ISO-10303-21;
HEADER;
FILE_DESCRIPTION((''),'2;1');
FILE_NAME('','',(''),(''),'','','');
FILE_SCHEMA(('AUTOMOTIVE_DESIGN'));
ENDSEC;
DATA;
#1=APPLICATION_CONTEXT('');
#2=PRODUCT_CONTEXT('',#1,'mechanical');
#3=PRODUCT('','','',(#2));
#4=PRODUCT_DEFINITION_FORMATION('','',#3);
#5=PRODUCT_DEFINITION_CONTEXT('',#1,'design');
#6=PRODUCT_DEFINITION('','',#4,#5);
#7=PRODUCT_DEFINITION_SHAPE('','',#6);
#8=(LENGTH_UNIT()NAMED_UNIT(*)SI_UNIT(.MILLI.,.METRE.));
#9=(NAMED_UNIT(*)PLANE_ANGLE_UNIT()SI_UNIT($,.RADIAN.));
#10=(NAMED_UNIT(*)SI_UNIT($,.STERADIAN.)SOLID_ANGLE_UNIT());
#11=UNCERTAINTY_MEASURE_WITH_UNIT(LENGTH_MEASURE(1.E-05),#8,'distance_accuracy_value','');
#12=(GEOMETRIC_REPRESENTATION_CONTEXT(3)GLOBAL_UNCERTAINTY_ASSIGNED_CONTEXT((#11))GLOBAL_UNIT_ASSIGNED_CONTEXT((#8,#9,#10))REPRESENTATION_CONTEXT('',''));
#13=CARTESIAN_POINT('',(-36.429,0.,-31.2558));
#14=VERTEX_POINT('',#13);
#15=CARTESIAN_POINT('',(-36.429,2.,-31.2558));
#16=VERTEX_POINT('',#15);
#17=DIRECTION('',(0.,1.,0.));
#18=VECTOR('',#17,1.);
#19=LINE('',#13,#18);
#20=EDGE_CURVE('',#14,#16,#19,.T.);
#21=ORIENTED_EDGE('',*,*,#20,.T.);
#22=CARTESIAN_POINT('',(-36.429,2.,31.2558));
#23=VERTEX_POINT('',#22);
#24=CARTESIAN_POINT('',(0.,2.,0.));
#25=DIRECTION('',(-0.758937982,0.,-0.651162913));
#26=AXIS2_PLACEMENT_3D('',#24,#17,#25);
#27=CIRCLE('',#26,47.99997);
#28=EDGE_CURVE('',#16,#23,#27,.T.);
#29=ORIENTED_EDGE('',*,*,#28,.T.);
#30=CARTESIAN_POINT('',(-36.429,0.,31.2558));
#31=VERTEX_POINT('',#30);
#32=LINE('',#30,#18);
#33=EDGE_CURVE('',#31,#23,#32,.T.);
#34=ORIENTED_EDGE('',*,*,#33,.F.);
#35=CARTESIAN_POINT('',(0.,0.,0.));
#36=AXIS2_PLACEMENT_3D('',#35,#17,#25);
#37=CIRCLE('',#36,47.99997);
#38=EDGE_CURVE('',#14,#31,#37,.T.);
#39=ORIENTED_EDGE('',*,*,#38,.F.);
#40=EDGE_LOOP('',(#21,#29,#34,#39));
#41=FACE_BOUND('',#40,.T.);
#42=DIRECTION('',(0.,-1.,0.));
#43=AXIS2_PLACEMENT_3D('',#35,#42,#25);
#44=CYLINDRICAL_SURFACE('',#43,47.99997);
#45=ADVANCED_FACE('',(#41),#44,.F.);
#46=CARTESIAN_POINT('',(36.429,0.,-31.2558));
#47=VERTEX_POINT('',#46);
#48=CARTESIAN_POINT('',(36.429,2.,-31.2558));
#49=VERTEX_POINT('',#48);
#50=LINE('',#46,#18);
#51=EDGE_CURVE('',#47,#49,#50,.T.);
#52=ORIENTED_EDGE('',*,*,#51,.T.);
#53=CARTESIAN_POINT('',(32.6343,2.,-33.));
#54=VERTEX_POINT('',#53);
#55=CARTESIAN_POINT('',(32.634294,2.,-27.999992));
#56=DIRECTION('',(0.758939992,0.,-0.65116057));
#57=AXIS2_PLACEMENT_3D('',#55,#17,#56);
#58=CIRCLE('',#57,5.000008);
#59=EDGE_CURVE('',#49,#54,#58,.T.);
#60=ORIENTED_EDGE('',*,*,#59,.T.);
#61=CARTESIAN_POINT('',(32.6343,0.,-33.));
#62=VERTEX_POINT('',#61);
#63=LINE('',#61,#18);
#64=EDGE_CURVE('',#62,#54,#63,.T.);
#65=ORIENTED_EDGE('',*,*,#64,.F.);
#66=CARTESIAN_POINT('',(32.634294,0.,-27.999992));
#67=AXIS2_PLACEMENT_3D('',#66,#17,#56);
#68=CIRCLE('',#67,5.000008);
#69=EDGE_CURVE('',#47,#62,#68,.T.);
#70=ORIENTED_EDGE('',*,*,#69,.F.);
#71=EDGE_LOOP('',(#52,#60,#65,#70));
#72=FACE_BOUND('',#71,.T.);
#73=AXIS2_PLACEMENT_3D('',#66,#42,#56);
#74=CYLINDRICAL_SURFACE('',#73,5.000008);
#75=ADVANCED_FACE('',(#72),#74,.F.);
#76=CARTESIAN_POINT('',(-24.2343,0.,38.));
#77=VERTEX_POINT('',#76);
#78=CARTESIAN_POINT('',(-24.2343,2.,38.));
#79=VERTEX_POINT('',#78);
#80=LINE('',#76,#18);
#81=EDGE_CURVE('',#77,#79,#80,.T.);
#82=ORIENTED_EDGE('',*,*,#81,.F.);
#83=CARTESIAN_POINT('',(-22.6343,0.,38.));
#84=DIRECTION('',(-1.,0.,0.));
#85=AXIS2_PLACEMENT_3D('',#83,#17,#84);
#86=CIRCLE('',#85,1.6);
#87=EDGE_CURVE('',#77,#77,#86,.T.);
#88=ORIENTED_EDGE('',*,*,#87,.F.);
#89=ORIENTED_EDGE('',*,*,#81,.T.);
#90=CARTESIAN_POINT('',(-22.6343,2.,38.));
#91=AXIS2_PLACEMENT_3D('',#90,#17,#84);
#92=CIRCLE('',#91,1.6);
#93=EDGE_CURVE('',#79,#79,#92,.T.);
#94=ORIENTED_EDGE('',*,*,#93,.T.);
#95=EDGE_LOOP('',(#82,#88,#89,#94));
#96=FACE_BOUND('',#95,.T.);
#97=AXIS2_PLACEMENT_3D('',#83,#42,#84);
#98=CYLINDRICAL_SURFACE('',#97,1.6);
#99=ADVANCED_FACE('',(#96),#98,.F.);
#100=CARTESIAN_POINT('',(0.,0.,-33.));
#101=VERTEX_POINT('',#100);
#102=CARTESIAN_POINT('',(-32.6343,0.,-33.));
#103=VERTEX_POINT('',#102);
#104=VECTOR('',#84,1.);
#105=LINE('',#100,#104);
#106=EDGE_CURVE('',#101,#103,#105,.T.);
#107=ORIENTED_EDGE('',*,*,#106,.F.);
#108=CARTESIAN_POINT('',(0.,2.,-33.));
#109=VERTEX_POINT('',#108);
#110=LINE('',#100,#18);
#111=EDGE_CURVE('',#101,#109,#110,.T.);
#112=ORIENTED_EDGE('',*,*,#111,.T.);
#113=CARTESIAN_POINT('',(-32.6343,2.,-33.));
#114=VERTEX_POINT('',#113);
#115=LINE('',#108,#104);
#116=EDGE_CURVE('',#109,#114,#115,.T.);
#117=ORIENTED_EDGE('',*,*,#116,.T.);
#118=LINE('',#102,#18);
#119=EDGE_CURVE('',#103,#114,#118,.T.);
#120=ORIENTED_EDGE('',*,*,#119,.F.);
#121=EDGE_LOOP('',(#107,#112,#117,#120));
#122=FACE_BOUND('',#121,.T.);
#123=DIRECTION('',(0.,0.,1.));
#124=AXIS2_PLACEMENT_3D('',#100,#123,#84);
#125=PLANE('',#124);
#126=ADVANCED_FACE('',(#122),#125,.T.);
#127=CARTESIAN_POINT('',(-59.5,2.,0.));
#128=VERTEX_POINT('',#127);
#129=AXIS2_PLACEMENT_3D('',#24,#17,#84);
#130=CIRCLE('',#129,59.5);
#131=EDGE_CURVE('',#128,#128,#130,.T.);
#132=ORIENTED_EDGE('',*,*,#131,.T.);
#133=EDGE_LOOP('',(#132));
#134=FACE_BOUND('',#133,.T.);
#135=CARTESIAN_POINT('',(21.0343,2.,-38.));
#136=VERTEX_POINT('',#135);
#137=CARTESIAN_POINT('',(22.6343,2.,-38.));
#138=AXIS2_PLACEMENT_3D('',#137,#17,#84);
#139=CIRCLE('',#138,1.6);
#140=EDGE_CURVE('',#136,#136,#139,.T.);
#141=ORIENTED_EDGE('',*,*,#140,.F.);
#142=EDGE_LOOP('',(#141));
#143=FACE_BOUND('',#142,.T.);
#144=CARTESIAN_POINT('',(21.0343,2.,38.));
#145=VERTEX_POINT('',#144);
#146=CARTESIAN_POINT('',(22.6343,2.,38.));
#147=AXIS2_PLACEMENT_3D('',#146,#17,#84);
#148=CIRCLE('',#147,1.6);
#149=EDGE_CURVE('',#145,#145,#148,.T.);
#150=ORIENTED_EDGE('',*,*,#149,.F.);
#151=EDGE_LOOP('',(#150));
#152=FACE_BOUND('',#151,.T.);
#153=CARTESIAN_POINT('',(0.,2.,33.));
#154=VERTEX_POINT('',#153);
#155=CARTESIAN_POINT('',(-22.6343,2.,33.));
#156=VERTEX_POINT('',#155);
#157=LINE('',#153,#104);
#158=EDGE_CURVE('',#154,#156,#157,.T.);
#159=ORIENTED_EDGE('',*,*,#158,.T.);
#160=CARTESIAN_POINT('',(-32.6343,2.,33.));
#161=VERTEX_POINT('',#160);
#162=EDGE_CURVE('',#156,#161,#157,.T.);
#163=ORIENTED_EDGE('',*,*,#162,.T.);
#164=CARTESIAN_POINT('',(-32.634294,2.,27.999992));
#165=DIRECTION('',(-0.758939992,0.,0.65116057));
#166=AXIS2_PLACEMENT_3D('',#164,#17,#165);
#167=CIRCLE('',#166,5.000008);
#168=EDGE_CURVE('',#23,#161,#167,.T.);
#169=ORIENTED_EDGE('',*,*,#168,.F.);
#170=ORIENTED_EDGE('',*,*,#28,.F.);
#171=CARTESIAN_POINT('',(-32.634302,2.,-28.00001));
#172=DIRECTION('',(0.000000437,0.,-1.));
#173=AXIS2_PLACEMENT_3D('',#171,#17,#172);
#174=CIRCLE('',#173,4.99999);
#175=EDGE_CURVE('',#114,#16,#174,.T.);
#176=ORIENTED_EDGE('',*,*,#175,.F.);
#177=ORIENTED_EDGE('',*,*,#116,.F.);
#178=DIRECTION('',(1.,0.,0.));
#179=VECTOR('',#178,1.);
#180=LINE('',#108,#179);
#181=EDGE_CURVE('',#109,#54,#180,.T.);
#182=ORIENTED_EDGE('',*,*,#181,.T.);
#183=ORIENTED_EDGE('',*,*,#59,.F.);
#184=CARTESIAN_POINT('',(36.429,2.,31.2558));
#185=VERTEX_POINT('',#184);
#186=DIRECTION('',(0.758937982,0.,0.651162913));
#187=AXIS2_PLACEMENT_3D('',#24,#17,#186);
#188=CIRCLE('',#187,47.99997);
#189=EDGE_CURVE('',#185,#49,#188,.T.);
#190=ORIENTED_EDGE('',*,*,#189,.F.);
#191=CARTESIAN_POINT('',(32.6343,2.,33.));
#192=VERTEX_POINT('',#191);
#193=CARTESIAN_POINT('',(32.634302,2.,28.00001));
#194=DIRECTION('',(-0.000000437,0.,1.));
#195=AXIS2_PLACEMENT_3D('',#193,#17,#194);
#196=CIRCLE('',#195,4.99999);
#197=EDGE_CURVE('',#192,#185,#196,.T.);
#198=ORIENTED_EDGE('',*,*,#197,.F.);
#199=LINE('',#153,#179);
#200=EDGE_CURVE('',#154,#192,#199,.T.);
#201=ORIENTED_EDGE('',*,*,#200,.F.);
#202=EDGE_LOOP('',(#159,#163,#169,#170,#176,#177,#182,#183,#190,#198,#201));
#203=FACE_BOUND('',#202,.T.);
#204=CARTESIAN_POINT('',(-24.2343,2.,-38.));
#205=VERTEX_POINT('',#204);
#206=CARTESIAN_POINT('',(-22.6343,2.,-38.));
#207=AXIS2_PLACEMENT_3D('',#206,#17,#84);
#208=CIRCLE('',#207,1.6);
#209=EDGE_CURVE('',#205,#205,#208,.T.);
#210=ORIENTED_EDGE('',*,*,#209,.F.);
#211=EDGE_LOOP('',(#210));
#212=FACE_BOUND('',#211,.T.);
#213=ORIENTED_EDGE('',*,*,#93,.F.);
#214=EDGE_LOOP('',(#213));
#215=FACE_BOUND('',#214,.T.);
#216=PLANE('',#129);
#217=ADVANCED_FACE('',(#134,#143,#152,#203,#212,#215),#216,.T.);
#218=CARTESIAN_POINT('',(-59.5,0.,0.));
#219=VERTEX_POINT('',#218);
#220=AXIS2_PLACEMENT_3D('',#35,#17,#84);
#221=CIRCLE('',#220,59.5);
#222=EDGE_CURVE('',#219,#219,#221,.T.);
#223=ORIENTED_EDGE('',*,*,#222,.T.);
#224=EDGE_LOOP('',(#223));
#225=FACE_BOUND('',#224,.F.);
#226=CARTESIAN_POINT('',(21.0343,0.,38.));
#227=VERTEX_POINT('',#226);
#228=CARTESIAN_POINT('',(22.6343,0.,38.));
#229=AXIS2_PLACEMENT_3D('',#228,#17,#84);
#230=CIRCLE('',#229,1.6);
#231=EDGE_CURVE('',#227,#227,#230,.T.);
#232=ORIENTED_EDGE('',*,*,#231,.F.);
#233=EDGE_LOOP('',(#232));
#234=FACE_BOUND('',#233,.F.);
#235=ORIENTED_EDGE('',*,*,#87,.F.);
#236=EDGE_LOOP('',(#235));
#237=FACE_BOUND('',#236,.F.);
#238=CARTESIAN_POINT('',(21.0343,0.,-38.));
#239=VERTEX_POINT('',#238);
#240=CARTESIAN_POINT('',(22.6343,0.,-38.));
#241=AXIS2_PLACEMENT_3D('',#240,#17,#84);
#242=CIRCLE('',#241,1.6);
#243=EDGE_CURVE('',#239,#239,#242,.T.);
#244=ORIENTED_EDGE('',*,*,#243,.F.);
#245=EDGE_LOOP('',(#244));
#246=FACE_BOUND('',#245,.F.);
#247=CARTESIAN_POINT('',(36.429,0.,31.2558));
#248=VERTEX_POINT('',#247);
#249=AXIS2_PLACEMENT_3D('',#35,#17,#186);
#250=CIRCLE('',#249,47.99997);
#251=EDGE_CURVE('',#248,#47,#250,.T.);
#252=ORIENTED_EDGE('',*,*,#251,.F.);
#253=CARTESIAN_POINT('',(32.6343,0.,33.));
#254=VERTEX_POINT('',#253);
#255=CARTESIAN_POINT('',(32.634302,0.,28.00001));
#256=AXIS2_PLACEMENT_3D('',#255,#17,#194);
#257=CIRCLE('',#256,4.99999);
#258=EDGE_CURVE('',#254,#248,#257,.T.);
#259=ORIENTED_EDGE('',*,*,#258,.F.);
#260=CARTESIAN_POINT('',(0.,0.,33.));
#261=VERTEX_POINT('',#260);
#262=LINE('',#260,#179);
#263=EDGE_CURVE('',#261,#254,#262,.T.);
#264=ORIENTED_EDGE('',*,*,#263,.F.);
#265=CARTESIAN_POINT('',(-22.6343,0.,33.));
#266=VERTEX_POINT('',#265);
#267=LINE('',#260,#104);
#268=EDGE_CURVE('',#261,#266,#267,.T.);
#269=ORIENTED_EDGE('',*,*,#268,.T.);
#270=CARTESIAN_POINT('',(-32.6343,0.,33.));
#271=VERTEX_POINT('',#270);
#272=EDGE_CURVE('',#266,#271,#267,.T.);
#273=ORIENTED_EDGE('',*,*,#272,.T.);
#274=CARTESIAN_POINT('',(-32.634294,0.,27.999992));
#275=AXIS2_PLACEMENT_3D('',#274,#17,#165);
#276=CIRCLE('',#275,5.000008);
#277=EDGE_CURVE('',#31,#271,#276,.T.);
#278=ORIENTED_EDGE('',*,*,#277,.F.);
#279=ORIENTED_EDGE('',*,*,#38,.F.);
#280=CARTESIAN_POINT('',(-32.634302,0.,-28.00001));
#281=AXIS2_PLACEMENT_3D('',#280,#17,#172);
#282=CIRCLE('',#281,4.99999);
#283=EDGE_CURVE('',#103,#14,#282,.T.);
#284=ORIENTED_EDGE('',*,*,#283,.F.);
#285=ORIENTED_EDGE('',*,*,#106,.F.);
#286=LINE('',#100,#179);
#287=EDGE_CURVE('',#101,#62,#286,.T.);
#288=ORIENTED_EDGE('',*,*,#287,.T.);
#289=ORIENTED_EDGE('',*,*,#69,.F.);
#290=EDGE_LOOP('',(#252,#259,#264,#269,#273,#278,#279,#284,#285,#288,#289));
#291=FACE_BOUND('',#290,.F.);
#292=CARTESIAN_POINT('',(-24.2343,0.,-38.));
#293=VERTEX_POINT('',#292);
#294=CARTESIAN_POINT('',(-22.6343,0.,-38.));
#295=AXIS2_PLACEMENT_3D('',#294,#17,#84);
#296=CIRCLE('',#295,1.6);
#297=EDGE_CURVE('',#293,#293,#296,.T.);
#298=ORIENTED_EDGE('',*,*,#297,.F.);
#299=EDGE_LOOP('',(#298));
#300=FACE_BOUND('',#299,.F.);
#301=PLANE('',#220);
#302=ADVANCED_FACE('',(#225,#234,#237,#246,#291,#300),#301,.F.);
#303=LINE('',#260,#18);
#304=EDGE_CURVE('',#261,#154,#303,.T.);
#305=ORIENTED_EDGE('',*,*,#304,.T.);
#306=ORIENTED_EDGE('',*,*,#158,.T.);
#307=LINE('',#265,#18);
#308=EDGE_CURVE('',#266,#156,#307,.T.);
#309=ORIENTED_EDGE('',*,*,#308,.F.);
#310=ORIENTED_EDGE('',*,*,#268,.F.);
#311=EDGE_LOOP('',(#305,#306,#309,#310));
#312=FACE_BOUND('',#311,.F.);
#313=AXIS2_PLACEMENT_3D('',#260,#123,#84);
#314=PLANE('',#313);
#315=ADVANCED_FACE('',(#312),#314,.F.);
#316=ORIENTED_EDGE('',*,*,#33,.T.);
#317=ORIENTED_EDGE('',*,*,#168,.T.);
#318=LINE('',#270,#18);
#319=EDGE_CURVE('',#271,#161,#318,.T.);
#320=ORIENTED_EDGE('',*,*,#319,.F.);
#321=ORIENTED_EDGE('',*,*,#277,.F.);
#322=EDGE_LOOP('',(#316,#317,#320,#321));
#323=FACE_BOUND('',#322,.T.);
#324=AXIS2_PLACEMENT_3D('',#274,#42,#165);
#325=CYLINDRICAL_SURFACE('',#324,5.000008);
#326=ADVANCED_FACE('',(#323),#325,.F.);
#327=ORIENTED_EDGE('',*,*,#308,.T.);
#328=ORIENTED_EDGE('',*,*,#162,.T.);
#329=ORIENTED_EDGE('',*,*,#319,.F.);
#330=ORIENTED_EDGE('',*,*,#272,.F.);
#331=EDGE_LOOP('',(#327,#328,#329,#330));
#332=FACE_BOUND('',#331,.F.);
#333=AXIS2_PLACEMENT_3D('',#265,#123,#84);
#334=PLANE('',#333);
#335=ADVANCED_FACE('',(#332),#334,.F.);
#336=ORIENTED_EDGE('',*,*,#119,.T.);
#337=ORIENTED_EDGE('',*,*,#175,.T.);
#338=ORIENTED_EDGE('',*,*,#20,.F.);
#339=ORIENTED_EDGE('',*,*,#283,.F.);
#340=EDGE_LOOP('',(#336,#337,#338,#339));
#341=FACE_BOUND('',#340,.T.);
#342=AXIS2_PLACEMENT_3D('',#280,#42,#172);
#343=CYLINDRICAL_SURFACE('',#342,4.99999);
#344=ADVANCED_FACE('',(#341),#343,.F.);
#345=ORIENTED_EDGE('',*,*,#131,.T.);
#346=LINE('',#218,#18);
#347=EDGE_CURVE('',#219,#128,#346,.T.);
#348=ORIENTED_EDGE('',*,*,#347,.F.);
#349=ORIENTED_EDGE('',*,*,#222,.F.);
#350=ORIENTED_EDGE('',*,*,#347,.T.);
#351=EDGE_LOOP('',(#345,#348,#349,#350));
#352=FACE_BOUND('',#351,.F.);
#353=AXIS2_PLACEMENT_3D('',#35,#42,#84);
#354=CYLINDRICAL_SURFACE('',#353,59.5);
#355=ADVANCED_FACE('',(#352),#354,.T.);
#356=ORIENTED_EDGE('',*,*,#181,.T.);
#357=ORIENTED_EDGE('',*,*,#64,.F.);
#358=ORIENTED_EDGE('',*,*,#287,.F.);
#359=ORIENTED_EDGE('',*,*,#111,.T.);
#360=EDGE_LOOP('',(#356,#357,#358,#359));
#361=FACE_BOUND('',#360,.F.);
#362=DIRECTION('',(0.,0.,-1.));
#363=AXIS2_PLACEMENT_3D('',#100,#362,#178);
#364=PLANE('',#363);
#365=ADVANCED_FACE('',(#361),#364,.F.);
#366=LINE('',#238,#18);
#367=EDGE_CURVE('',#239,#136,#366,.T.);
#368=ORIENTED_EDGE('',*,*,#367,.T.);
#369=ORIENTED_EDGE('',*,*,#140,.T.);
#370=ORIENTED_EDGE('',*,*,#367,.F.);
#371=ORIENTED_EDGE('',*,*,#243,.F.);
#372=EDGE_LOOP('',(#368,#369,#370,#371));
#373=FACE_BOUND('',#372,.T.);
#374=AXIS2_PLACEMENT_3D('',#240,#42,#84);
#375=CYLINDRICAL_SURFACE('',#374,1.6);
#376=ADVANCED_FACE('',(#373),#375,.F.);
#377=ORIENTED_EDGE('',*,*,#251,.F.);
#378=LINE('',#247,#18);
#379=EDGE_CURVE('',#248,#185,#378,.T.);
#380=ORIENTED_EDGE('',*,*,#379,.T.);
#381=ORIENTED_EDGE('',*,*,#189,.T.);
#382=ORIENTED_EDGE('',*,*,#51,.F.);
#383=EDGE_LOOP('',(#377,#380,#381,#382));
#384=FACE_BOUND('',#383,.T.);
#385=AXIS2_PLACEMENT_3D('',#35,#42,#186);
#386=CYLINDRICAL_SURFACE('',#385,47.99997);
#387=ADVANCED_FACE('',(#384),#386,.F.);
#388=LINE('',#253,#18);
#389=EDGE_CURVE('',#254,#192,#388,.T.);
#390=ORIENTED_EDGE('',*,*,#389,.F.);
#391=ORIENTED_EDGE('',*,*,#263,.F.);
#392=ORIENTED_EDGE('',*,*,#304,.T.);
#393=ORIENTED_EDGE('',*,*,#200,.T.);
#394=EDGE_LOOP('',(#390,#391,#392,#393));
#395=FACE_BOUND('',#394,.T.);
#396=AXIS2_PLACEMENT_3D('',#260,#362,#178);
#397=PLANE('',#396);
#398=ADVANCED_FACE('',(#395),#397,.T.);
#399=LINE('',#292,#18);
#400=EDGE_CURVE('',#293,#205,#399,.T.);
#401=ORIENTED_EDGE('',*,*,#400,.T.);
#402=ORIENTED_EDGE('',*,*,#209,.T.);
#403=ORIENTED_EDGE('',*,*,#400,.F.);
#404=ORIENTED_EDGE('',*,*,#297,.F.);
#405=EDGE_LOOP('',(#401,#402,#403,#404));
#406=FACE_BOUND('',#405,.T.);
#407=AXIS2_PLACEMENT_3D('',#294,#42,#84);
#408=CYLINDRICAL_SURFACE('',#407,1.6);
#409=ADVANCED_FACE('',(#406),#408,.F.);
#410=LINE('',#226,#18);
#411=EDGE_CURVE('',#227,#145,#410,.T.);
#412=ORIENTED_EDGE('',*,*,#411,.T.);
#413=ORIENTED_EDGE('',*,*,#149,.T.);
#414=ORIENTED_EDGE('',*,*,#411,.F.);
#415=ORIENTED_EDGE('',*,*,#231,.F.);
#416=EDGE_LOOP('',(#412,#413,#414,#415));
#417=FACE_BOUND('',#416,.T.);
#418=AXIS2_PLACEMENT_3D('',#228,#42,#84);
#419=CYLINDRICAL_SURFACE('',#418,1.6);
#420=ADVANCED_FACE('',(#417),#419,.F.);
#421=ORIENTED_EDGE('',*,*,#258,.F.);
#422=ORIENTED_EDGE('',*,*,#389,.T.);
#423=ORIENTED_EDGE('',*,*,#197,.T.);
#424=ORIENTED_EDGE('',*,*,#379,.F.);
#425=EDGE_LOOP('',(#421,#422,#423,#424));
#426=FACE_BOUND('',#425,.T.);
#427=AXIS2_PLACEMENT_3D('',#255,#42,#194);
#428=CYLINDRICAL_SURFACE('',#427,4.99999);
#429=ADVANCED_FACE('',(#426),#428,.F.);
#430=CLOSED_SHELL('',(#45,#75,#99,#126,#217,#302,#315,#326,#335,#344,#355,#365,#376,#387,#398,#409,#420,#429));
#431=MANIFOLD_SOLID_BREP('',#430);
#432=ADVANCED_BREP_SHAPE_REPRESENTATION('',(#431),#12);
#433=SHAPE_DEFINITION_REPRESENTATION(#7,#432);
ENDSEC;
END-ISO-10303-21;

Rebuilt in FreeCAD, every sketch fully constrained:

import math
import FreeCAD as App
import Part
import Sketcher
from FreeCAD import Vector
Q = App.Units.Quantity

doc = App.newDocument("Part")
body = doc.addObject("PartDesign::Body", "Body")

# Sketch on XZ plane
sketch1 = doc.addObject("Sketcher::SketchObject", "Sketch")
body.addObject(sketch1)
sketch1.AttachmentSupport = (doc.XZ_Plane, [""])
sketch1.MapMode = "FlatFace"
sketch1.addGeometry(Part.Circle(Vector(0, 0, 0), Vector(0, 0, 1), 59.5), False)
sketch1.addGeometry(Part.Circle(Vector(22.6, -38, 0), Vector(0, 0, 1), 1.6), False)
sketch1.addGeometry(Part.Circle(Vector(-22.6, -38, 0), Vector(0, 0, 1), 1.6), False)
sketch1.addGeometry(Part.LineSegment(Vector(32.6, 33, 0), Vector(-32.6, 33, 0)), False)
sketch1.addGeometry(Part.ArcOfCircle(Part.Circle(Vector(-32.6, 28, 0), Vector(0, 0, 1), 5), math.radians(90), math.radians(139)), False)
sketch1.addGeometry(Part.ArcOfCircle(Part.Circle(Vector(0, 0, 0), Vector(0, 0, 1), 48), math.radians(139), math.radians(221)), False)
sketch1.addGeometry(Part.ArcOfCircle(Part.Circle(Vector(-32.6, -28, 0), Vector(0, 0, 1), 5), math.radians(-139), math.radians(-90)), False)
sketch1.addGeometry(Part.LineSegment(Vector(-32.6, -33, 0), Vector(32.6, -33, 0)), False)
sketch1.addGeometry(Part.ArcOfCircle(Part.Circle(Vector(32.6, -28, 0), Vector(0, 0, 1), 5), math.radians(-90), math.radians(-41)), False)
sketch1.addGeometry(Part.ArcOfCircle(Part.Circle(Vector(0, 0, 0), Vector(0, 0, 1), 48), math.radians(-41), math.radians(41)), False)
sketch1.addGeometry(Part.ArcOfCircle(Part.Circle(Vector(32.6, 28, 0), Vector(0, 0, 1), 5), math.radians(41), math.radians(90)), False)
sketch1.addGeometry(Part.Circle(Vector(22.6, 38, 0), Vector(0, 0, 1), 1.6), False)
sketch1.addGeometry(Part.Circle(Vector(-22.6, 38, 0), Vector(0, 0, 1), 1.6), False)
sketch1.addConstraint(Sketcher.Constraint("Tangent", 3, 2, 4, 1))
sketch1.addConstraint(Sketcher.Constraint("Tangent", 4, 2, 5, 1))
sketch1.addConstraint(Sketcher.Constraint("Tangent", 5, 2, 6, 1))
sketch1.addConstraint(Sketcher.Constraint("Tangent", 6, 2, 7, 1))
sketch1.addConstraint(Sketcher.Constraint("Tangent", 7, 2, 8, 1))
sketch1.addConstraint(Sketcher.Constraint("Tangent", 8, 2, 9, 1))
sketch1.addConstraint(Sketcher.Constraint("Tangent", 9, 2, 10, 1))
sketch1.addConstraint(Sketcher.Constraint("Tangent", 10, 2, 3, 1))
sketch1.addConstraint(Sketcher.Constraint("Horizontal", 3))
sketch1.addConstraint(Sketcher.Constraint("Horizontal", 7))
sketch1.addConstraint(Sketcher.Constraint("Coincident", 0, 3, -1, 1))
sketch1.addConstraint(Sketcher.Constraint("Coincident", 5, 3, -1, 1))
sketch1.addConstraint(Sketcher.Constraint("Coincident", 9, 3, -1, 1))
sketch1.addConstraint(Sketcher.Constraint("Equal", 1, 2))
sketch1.addConstraint(Sketcher.Constraint("Equal", 4, 6))
sketch1.addConstraint(Sketcher.Constraint("Equal", 6, 8))
sketch1.addConstraint(Sketcher.Constraint("Equal", 5, 9))
sketch1.addConstraint(Sketcher.Constraint("Equal", 8, 10))
sketch1.addConstraint(Sketcher.Constraint("Equal", 2, 11))
sketch1.addConstraint(Sketcher.Constraint("Equal", 11, 12))
sketch1.addConstraint(Sketcher.Constraint("Symmetric", 2, 3, 11, 3, -1, 1))
sketch1.addConstraint(Sketcher.Constraint("Symmetric", 1, 3, 12, 3, -1, 1))
sketch1.addConstraint(Sketcher.Constraint("Symmetric", 1, 3, 2, 3, -2))
sketch1.addConstraint(Sketcher.Constraint("Vertical", 4, 3, 6, 3))
sketch1.addConstraint(Sketcher.Constraint("Diameter", 0, Q("119 mm")))
sketch1.addConstraint(Sketcher.Constraint("Radius", 4, Q("5 mm")))
sketch1.addConstraint(Sketcher.Constraint("Diameter", 1, Q("3.2 mm")))
sketch1.addConstraint(Sketcher.Constraint("Radius", 5, Q("48 mm")))
sketch1.addConstraint(Sketcher.Constraint("DistanceX", 4, 3, 2, 3, Q("10 mm")))
sketch1.addConstraint(Sketcher.Constraint("DistanceY", 2, 3, 6, 3, Q("10 mm")))
sketch1.addConstraint(Sketcher.Constraint("DistanceY", 1, 3, -1, 1, Q("38 mm")))
pad1 = doc.addObject("PartDesign::Pad", "Pad")
body.addObject(pad1)
pad1.Profile = sketch1
pad1.Length = 2
pad1.Reversed = True

doc.recompute()
